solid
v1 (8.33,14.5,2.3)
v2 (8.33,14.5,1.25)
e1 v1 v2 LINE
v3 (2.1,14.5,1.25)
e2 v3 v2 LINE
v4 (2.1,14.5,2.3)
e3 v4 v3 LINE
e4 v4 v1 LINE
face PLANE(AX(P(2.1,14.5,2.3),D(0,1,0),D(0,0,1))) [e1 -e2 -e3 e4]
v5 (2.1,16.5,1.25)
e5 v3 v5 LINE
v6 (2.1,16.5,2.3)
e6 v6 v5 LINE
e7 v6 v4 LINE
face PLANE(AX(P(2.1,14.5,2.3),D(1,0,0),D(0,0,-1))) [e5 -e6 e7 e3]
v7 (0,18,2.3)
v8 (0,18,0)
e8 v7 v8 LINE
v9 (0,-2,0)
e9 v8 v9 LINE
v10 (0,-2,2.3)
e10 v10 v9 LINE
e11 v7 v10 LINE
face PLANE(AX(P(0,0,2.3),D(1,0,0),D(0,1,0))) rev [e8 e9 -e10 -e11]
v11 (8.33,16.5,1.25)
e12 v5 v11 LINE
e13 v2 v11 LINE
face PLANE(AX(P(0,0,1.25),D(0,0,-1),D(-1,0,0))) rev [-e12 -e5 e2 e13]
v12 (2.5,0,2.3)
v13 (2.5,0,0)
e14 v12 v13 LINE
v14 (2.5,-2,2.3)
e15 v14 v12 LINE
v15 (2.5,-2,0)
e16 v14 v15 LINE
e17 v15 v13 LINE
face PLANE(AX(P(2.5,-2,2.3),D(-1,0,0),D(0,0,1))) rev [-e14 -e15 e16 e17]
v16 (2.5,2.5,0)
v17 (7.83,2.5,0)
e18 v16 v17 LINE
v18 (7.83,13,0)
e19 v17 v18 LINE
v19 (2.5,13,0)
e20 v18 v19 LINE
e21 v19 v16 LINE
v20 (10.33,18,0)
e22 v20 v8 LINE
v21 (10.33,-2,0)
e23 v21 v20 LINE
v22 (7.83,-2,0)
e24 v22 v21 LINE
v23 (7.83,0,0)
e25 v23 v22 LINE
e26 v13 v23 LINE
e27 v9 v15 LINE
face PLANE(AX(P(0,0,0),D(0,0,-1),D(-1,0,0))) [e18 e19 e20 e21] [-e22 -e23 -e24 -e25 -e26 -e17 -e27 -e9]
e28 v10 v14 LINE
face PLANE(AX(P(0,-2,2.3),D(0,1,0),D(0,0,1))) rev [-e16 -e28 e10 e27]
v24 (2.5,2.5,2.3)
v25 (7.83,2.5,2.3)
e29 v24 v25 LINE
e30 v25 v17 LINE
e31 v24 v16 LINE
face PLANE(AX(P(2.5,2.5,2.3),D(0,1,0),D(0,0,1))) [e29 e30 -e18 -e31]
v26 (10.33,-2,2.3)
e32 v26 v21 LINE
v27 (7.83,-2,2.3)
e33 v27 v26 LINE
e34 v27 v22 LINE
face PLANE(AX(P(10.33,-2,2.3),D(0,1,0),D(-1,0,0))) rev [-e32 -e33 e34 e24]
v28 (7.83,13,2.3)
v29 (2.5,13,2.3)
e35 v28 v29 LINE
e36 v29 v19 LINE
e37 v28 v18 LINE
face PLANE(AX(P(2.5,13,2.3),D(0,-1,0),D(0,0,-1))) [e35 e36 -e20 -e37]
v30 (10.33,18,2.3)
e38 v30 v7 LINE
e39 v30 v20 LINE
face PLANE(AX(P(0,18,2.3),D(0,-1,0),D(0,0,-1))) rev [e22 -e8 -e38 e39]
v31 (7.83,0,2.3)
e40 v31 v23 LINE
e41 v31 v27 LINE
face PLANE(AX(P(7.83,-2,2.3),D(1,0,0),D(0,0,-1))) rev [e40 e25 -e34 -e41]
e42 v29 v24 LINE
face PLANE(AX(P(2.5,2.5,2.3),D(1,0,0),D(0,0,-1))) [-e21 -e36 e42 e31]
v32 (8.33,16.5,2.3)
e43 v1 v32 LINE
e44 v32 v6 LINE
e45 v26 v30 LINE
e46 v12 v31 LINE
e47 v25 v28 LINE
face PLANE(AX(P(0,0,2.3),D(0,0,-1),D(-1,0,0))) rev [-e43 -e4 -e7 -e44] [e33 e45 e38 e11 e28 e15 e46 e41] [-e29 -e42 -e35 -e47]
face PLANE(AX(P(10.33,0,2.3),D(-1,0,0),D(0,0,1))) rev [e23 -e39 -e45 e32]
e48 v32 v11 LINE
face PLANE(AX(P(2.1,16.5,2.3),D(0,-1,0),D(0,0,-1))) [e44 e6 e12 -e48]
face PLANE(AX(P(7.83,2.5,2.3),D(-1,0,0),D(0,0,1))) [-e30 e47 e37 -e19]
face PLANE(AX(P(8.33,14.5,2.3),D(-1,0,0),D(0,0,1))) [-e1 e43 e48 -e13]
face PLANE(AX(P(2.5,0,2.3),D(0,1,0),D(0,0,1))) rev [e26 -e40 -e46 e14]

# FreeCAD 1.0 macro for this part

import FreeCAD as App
import Part
import Sketcher
from FreeCAD import Vector


def add_polygon(sketch, points):
    """Adds a closed chain of lines whose ends are joined by coincident constraints."""
    first, n = sketch.GeometryCount, len(points)
    for a, b in zip(points, points[1:] + points[:1]):
        sketch.addGeometry(Part.LineSegment(App.Vector(*a, 0), App.Vector(*b, 0)), False)
    for i in range(n):
        sketch.addConstraint(Sketcher.Constraint("Coincident", first + i, 2, first + (i + 1) % n, 1))

doc = App.newDocument("Part")
body = doc.addObject("PartDesign::Body", "Body")

sketch1 = doc.addObject("Sketcher::SketchObject", "Sketch")
body.addObject(sketch1)
sketch1.AttachmentSupport = (doc.XY_Plane, [""])
sketch1.MapMode = "FlatFace"
add_polygon(sketch1, [(0, -2), (2.5, -2), (2.5, 0), (7.8, 0), (7.8, -2), (10.3, -2), (10.3, 18), (0, 18)])
add_polygon(sketch1, [(7.8, 2.5), (2.5, 2.5), (2.5, 13), (7.8, 13)])
add_polygon(sketch1, [(8.3, 14.5), (2.1, 14.5), (2.1, 16.5), (8.3, 16.5)])
sketch1.addConstraint(Sketcher.Constraint("Horizontal", 0))
sketch1.addConstraint(Sketcher.Constraint("Vertical", 1))
sketch1.addConstraint(Sketcher.Constraint("Horizontal", 2))
sketch1.addConstraint(Sketcher.Constraint("Vertical", 3))
sketch1.addConstraint(Sketcher.Constraint("Horizontal", 4))
sketch1.addConstraint(Sketcher.Constraint("Vertical", 5))
sketch1.addConstraint(Sketcher.Constraint("Horizontal", 6))
sketch1.addConstraint(Sketcher.Constraint("Vertical", 7))
sketch1.addConstraint(Sketcher.Constraint("Horizontal", 8))
sketch1.addConstraint(Sketcher.Constraint("Vertical", 9))
sketch1.addConstraint(Sketcher.Constraint("Horizontal", 10))
sketch1.addConstraint(Sketcher.Constraint("Vertical", 11))
sketch1.addConstraint(Sketcher.Constraint("Horizontal", 12))
sketch1.addConstraint(Sketcher.Constraint("Vertical", 13))
sketch1.addConstraint(Sketcher.Constraint("Horizontal", 14))
sketch1.addConstraint(Sketcher.Constraint("Vertical", 15))
sketch1.addConstraint(Sketcher.Constraint("PointOnObject", 1, 2, -1))
sketch1.addConstraint(Sketcher.Constraint("PointOnObject", 6, 2, -2))
sketch1.addConstraint(Sketcher.Constraint("Horizontal", 0, 2, 3, 2))
sketch1.addConstraint(Sketcher.Constraint("Vertical", 1, 2, 8, 2))
sketch1.addConstraint(Sketcher.Constraint("Vertical", 3, 2, 10, 2))
sketch1.addConstraint(Sketcher.Constraint("Equal", 0, 4))
sketch1.addConstraint(Sketcher.Constraint("Equal", 3, 13))
sketch1.addConstraint(Sketcher.Constraint("DistanceY", 1, 1, 1, 2, 2.0))
sketch1.addConstraint(Sketcher.Constraint("DistanceY", 5, 1, 5, 2, 20.0))
sketch1.addConstraint(Sketcher.Constraint("DistanceX", 0, 1, 0, 2, 2.5))
sketch1.addConstraint(Sketcher.Constraint("DistanceY", 9, 1, 9, 2, 10.5))
sketch1.addConstraint(Sketcher.Constraint("DistanceY", -1, 1, 9, 2, 13.0))
sketch1.addConstraint(Sketcher.Constraint("DistanceY", 8, 2, 12, 2, 12.0))
sketch1.addConstraint(Sketcher.Constraint("DistanceX", 14, 2, 5, 2, 2.0))
sketch1.addConstraint(Sketcher.Constraint("DistanceX", 2, 1, 2, 2, 5.33))
sketch1.addConstraint(Sketcher.Constraint("DistanceX", 12, 2, 12, 1, 6.23))
pad1 = doc.addObject("PartDesign::Pad", "Pad")
body.addObject(pad1)
pad1.Profile = sketch1
pad1.Length = 2.3

sketch2 = doc.addObject("Sketcher::SketchObject", "Sketch001")
body.addObject(sketch2)
sketch2.AttachmentSupport = (doc.XY_Plane, [""])
sketch2.MapMode = "FlatFace"
add_polygon(sketch2, [(2.1, 16.5), (2.1, 14.5), (8.3, 14.5), (8.3, 16.5)])
sketch2.addConstraint(Sketcher.Constraint("Vertical", 0))
sketch2.addConstraint(Sketcher.Constraint("Horizontal", 1))
sketch2.addConstraint(Sketcher.Constraint("Vertical", 2))
sketch2.addConstraint(Sketcher.Constraint("Horizontal", 3))
sketch2.addConstraint(Sketcher.Constraint("DistanceY", 0, 2, 0, 1, 2.0))
sketch2.addConstraint(Sketcher.Constraint("DistanceX", 1, 1, 1, 2, 6.23))
sketch2.addConstraint(Sketcher.Constraint("DistanceX", -1, 1, 0, 2, 2.1))
sketch2.addConstraint(Sketcher.Constraint("DistanceY", -1, 1, 0, 2, 14.5))
pad2 = doc.addObject("PartDesign::Pad", "Pad001")
body.addObject(pad2)
pad2.Profile = sketch2
pad2.Length = 1.25

doc.recompute()
